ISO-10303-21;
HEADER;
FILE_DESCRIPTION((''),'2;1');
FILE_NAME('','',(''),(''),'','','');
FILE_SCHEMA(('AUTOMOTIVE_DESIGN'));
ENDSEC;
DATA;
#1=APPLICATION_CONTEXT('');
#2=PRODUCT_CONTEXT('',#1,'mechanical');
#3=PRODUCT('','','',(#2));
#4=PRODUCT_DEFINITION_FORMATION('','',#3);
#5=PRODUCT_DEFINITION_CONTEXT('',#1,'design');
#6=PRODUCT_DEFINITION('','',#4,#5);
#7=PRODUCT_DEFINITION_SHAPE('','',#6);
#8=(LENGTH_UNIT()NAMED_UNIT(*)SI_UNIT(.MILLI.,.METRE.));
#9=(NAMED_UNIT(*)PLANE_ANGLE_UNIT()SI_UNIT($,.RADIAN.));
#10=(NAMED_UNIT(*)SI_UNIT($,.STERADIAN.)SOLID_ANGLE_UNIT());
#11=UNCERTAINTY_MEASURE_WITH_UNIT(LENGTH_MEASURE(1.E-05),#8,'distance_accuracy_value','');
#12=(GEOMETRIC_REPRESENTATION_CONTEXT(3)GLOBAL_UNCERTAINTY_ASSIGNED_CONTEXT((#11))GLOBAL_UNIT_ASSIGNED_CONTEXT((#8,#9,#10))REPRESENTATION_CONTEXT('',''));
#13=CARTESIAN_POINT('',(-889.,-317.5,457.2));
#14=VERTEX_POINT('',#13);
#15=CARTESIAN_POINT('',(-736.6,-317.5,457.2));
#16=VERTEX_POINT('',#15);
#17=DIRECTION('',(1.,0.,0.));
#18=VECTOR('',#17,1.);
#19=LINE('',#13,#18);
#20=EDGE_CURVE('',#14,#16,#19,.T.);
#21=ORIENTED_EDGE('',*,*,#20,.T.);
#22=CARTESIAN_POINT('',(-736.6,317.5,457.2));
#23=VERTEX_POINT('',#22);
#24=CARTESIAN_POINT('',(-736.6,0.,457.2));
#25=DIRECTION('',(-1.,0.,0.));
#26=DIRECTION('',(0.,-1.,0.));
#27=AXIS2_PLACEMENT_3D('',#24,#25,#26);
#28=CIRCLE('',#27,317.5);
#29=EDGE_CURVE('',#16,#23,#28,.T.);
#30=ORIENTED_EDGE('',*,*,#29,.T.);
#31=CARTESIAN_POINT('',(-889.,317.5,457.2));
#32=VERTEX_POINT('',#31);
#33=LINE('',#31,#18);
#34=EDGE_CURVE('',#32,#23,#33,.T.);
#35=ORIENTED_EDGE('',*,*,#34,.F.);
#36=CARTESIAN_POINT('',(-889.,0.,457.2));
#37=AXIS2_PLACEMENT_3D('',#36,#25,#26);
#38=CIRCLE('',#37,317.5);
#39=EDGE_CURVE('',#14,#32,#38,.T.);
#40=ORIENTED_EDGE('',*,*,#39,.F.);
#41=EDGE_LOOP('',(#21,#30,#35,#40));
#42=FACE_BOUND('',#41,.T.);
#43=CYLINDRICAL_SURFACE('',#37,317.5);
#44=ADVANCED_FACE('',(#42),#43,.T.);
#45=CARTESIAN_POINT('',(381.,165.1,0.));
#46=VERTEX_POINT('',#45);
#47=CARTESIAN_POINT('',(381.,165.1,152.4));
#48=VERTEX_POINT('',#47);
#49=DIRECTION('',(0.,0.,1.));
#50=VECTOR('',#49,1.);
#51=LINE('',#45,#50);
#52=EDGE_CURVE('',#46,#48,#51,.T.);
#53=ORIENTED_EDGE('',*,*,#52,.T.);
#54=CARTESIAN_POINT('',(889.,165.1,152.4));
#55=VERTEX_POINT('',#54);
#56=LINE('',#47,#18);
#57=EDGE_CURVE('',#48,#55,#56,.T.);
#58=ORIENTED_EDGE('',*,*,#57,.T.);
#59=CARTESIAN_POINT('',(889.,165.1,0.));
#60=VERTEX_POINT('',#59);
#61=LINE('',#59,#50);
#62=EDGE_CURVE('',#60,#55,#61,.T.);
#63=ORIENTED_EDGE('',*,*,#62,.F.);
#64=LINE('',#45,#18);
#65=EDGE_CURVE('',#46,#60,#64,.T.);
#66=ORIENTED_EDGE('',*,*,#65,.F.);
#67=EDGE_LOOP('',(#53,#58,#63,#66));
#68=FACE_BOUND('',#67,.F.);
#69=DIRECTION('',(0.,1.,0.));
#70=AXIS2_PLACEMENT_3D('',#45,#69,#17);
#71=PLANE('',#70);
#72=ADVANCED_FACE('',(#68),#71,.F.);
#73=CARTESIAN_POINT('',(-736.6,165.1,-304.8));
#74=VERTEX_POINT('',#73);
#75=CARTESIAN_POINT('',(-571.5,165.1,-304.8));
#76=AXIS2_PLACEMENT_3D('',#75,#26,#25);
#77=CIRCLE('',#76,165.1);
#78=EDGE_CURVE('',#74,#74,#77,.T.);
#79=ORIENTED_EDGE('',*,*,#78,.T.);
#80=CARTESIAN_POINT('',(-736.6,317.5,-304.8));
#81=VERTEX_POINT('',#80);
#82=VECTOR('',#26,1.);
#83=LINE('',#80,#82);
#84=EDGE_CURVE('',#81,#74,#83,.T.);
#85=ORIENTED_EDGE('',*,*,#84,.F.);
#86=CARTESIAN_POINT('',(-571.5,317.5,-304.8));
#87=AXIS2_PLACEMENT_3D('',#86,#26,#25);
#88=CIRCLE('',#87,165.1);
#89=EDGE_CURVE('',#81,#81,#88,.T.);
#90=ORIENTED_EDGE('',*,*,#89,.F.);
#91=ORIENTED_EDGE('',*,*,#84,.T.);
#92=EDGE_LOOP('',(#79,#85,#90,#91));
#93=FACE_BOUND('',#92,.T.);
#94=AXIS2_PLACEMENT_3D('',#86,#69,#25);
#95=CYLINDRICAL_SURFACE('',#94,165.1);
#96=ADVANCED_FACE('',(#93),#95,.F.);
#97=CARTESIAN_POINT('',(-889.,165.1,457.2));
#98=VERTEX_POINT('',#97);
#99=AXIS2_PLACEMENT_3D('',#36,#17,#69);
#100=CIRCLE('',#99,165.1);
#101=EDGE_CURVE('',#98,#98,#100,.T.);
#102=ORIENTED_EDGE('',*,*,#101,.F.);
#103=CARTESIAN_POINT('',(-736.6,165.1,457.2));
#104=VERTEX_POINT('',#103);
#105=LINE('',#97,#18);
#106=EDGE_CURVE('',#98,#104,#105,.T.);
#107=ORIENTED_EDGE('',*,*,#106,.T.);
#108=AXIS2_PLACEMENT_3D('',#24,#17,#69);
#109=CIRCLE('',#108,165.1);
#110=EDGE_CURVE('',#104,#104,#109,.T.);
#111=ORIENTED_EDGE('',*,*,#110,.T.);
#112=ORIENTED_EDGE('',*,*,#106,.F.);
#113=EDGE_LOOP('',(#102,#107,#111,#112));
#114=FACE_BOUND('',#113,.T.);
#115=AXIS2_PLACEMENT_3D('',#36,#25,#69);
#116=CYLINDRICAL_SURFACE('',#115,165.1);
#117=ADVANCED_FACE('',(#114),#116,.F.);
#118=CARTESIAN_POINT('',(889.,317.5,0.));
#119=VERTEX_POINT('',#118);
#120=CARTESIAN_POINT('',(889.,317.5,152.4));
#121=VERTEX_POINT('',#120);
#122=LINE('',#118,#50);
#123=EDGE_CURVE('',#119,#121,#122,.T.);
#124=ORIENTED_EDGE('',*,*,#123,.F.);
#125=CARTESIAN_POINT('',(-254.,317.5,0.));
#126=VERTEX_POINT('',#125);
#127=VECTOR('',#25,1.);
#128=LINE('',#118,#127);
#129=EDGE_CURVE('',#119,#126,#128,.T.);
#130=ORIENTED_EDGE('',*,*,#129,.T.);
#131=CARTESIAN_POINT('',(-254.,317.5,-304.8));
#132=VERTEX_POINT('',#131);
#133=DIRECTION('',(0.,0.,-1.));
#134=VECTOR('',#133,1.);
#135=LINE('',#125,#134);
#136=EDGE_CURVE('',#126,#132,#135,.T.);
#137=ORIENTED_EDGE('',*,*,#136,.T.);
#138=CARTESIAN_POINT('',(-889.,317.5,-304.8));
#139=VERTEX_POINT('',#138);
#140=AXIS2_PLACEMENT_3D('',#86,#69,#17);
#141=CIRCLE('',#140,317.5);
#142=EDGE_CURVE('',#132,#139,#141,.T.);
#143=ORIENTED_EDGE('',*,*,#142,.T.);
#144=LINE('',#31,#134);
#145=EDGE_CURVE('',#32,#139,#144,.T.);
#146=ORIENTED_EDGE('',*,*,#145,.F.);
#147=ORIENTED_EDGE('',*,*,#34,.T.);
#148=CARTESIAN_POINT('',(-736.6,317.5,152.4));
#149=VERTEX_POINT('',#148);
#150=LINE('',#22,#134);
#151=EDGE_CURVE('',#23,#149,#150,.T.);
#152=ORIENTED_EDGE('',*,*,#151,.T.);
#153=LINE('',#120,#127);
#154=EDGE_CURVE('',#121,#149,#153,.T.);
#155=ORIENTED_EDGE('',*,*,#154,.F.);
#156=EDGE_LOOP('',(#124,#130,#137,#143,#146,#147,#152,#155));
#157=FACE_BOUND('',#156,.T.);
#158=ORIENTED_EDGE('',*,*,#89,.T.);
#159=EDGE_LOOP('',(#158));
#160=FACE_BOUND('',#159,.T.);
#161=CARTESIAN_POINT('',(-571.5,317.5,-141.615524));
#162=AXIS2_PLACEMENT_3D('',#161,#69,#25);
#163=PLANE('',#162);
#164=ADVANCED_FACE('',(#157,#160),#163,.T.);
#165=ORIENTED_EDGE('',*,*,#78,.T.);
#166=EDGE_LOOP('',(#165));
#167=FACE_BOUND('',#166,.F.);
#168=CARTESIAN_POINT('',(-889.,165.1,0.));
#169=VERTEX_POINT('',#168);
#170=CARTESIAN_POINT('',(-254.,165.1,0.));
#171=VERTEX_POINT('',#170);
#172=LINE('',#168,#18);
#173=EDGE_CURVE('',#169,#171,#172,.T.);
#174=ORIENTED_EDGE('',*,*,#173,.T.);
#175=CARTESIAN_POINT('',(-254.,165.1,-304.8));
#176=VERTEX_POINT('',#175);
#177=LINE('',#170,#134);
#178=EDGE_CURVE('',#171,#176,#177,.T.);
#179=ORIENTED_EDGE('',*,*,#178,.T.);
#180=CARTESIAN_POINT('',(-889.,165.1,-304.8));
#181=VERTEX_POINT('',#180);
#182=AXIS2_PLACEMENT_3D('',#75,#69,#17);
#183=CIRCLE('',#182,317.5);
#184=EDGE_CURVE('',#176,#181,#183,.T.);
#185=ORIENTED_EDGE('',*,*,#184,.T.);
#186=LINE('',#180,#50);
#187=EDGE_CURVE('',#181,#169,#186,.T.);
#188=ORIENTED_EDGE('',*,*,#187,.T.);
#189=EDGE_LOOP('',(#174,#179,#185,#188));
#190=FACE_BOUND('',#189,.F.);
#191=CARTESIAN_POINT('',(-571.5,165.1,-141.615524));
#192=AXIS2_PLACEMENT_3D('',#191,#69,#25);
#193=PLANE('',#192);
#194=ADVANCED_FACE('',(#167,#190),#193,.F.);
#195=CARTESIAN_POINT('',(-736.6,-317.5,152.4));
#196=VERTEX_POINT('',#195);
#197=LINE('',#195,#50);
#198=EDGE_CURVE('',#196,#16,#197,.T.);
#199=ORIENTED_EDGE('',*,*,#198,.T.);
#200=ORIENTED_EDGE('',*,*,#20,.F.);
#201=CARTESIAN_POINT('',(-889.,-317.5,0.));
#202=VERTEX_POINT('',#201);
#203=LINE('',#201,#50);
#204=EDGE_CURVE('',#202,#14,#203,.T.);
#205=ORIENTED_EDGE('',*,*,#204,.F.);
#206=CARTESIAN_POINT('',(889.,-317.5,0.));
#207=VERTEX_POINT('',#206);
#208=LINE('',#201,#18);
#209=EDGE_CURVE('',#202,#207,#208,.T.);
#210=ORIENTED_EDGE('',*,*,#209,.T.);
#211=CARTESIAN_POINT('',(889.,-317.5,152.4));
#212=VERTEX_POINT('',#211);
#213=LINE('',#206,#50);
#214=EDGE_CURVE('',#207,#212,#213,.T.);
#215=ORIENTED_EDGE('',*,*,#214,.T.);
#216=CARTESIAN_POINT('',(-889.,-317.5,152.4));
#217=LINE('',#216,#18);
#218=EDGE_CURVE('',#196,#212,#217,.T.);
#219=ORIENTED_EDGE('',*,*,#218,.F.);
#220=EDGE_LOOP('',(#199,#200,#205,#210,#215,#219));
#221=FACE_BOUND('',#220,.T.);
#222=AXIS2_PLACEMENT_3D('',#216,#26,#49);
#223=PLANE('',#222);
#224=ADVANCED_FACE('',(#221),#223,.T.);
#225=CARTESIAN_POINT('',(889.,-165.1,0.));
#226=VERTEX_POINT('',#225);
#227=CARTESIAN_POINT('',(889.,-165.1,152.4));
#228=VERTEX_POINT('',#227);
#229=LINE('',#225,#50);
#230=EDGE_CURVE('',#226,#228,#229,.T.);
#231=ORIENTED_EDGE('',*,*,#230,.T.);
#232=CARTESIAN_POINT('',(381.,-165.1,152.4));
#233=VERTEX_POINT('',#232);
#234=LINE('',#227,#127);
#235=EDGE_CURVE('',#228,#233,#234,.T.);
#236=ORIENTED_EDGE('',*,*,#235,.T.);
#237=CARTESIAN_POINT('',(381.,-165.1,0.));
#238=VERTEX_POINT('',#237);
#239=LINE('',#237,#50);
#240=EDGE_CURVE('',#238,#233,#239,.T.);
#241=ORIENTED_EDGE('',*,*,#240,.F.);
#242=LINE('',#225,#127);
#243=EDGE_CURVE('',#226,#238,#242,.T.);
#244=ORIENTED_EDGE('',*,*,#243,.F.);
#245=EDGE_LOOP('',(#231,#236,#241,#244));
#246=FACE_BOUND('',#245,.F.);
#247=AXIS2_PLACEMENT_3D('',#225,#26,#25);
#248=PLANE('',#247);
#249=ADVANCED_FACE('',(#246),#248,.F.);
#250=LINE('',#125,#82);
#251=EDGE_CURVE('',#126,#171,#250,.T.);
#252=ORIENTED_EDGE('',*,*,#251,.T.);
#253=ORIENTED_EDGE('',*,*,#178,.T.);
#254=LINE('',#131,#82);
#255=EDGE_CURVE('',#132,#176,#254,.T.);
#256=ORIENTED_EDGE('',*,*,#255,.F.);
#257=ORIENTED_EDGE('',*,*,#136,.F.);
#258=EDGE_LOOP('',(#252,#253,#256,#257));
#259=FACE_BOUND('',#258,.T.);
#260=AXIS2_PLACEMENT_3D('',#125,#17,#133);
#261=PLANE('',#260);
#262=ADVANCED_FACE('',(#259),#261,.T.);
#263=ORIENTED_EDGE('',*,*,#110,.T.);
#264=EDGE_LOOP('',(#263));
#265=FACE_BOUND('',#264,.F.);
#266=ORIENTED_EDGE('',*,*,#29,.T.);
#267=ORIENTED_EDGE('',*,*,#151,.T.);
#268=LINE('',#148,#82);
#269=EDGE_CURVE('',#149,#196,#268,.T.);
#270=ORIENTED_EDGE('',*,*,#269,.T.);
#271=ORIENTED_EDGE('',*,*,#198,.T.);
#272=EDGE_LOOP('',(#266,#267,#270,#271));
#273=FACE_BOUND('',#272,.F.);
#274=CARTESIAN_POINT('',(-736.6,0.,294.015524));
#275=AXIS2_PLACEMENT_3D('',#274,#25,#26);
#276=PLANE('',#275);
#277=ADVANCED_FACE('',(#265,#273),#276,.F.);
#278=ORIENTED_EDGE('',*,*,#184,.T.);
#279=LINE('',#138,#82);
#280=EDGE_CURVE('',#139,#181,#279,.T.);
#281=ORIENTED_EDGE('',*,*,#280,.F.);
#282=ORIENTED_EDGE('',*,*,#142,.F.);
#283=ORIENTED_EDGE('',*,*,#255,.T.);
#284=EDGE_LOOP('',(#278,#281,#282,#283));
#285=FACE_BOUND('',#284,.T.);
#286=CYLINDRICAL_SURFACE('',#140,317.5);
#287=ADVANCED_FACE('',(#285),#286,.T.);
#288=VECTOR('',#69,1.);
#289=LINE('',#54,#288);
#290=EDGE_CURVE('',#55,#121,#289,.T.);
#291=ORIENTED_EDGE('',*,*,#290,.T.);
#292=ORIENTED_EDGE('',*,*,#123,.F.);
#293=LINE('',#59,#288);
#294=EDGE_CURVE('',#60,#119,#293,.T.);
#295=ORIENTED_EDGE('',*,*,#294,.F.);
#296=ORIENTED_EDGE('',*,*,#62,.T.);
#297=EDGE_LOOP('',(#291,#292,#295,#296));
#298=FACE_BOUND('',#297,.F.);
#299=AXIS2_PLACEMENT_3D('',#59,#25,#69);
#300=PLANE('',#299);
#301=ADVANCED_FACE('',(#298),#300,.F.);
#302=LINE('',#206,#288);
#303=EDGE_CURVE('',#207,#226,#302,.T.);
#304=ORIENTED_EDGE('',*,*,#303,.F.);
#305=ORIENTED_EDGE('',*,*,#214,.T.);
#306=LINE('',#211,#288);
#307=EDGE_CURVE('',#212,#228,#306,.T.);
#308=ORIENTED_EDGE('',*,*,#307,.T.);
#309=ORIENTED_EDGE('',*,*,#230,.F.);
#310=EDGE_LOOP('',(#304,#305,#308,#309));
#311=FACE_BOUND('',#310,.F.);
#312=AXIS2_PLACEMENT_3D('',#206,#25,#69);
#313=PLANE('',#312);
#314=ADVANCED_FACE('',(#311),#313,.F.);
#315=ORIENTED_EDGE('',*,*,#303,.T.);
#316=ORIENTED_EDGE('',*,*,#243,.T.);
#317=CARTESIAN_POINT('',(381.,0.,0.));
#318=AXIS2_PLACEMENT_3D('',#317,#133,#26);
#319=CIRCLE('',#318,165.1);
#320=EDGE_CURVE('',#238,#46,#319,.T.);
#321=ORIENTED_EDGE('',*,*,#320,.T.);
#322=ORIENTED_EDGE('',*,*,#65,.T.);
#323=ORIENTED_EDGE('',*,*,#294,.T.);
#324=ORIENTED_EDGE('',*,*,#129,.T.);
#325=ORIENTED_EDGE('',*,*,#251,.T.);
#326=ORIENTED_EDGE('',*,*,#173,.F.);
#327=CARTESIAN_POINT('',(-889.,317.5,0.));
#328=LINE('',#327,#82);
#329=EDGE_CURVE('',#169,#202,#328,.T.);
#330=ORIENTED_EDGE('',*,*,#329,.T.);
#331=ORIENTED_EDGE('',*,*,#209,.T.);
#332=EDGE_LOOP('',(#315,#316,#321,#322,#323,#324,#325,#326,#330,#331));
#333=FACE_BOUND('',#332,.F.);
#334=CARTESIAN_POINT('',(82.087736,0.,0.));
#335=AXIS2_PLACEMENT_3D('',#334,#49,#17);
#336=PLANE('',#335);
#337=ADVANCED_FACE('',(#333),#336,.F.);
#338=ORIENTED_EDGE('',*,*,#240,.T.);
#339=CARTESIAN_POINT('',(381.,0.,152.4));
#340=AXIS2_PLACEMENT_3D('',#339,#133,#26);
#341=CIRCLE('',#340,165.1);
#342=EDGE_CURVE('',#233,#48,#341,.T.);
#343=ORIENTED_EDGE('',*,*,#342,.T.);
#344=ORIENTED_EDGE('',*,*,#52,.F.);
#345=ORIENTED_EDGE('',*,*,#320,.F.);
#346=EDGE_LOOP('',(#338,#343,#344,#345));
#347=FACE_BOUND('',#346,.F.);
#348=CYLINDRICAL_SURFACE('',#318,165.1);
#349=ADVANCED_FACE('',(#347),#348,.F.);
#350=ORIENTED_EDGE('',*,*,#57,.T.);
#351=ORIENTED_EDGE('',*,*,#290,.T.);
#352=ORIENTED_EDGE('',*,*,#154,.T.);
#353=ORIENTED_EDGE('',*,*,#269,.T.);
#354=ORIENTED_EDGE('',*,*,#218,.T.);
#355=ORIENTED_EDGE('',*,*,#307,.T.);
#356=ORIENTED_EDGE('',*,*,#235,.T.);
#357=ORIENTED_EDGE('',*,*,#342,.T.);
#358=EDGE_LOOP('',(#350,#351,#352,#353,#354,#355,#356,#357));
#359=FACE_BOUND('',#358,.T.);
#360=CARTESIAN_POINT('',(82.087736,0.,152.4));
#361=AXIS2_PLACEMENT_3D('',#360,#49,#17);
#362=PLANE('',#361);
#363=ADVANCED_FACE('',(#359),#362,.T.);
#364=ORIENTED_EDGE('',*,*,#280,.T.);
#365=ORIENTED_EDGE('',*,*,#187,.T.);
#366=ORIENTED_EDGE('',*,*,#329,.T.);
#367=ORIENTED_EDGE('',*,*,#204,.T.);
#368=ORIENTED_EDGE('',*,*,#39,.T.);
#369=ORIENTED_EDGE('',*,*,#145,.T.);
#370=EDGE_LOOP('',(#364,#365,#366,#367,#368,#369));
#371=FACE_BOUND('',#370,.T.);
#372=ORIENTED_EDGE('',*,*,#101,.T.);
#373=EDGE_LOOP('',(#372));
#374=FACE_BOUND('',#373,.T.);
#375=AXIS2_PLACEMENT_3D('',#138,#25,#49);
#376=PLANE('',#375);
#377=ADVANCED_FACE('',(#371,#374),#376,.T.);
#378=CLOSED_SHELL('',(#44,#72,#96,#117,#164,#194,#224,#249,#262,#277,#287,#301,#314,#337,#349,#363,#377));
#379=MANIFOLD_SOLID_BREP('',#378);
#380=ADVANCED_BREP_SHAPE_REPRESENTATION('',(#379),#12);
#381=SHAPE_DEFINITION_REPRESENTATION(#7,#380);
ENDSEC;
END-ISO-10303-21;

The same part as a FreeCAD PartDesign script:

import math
import FreeCAD as App
import Part
import Sketcher
Q = App.Units.Quantity

doc = App.newDocument("Part")
body = doc.addObject("PartDesign::Body", "Body")

sketch1 = body.newObject("Sketcher::SketchObject", "Sketch")
sketch1.AttachmentSupport = (doc.getObject("XY_Plane"), [""])
sketch1.MapMode = "FlatFace"
sketch1.addGeometry(Part.LineSegment(App.Vector(889, 165, 0), App.Vector(889, 318, 0)), False)
sketch1.addGeometry(Part.LineSegment(App.Vector(889, 318, 0), App.Vector(-889, 318, 0)), False)
sketch1.addGeometry(Part.LineSegment(App.Vector(-889, 318, 0), App.Vector(-889, -318, 0)), False)
sketch1.addGeometry(Part.LineSegment(App.Vector(-889, -318, 0), App.Vector(889, -318, 0)), False)
sketch1.addGeometry(Part.LineSegment(App.Vector(889, -318, 0), App.Vector(889, -165, 0)), False)
sketch1.addGeometry(Part.LineSegment(App.Vector(889, -165, 0), App.Vector(381, -165, 0)), False)
sketch1.addGeometry(Part.ArcOfCircle(Part.Circle(App.Vector(381, 0, 0), App.Vector(0, 0, 1), 165), math.radians(90), math.radians(270)), False)
sketch1.addGeometry(Part.LineSegment(App.Vector(381, 165, 0), App.Vector(889, 165, 0)), False)
sketch1.addConstraint(Sketcher.Constraint("Coincident", 0, 2, 1, 1))
sketch1.addConstraint(Sketcher.Constraint("Coincident", 1, 2, 2, 1))
sketch1.addConstraint(Sketcher.Constraint("Coincident", 2, 2, 3, 1))
sketch1.addConstraint(Sketcher.Constraint("Coincident", 3, 2, 4, 1))
sketch1.addConstraint(Sketcher.Constraint("Coincident", 4, 2, 5, 1))
sketch1.addConstraint(Sketcher.Constraint("Tangent", 5, 2, 6, 2))
sketch1.addConstraint(Sketcher.Constraint("Tangent", 6, 1, 7, 1))
sketch1.addConstraint(Sketcher.Constraint("Coincident", 7, 2, 0, 1))
sketch1.addConstraint(Sketcher.Constraint("Vertical", 0))
sketch1.addConstraint(Sketcher.Constraint("Horizontal", 1))
sketch1.addConstraint(Sketcher.Constraint("Vertical", 2))
sketch1.addConstraint(Sketcher.Constraint("Horizontal", 3))
sketch1.addConstraint(Sketcher.Constraint("Vertical", 4))
sketch1.addConstraint(Sketcher.Constraint("Horizontal", 5))
sketch1.addConstraint(Sketcher.Constraint("Horizontal", 7))
sketch1.addConstraint(Sketcher.Constraint("Symmetric", 0, 2, 2, 2, -1, 1))
sketch1.addConstraint(Sketcher.Constraint("Symmetric", 4, 2, 7, 2, -1))
sketch1.addConstraint(Sketcher.Constraint("Radius", 6, Q("6.5 in")))
sketch1.addConstraint(Sketcher.Constraint("DistanceX", 1, 2, 1, 1, Q("70 in")))
sketch1.addConstraint(Sketcher.Constraint("DistanceX", 5, 2, 5, 1, Q("20 in")))
sketch1.addConstraint(Sketcher.Constraint("DistanceY", 0, 1, 0, 2, Q("6 in")))
pad1 = body.newObject("PartDesign::Pad", "Pad")
pad1.Profile = sketch1
pad1.Length = Q("6 in")

sketch2 = body.newObject("Sketcher::SketchObject", "Sketch001")
sketch2.AttachmentSupport = (doc.getObject("YZ_Plane"), [""])
sketch2.MapMode = "FlatFace"
sketch2.AttachmentOffset = App.Placement(App.Vector(0, 0, -35 * 25.4), App.Rotation())
sketch2.addGeometry(Part.LineSegment(App.Vector(318, 457, 0), App.Vector(318, 152, 0)), False)
sketch2.addGeometry(Part.LineSegment(App.Vector(318, 152, 0), App.Vector(-318, 152, 0)), False)
sketch2.addGeometry(Part.LineSegment(App.Vector(-318, 152, 0), App.Vector(-318, 457, 0)), False)
sketch2.addGeometry(Part.ArcOfCircle(Part.Circle(App.Vector(0, 457, 0), App.Vector(0, 0, 1), 318), math.radians(0), math.radians(180)), False)
sketch2.addGeometry(Part.Circle(App.Vector(0, 457, 0), App.Vector(0, 0, 1), 165), False)
sketch2.addConstraint(Sketcher.Constraint("Coincident", 0, 2, 1, 1))
sketch2.addConstraint(Sketcher.Constraint("Coincident", 1, 2, 2, 1))
sketch2.addConstraint(Sketcher.Constraint("Tangent", 2, 2, 3, 2))
sketch2.addConstraint(Sketcher.Constraint("Tangent", 3, 1, 0, 1))
sketch2.addConstraint(Sketcher.Constraint("Vertical", 0))
sketch2.addConstraint(Sketcher.Constraint("Horizontal", 1))
sketch2.addConstraint(Sketcher.Constraint("Vertical", 2))
sketch2.addConstraint(Sketcher.Constraint("Coincident", 4, 3, 3, 3))
sketch2.addConstraint(Sketcher.Constraint("PointOnObject", 3, 3, -2))
sketch2.addConstraint(Sketcher.Constraint("Diameter", 4, Q("13 in")))
sketch2.addConstraint(Sketcher.Constraint("Radius", 3, Q("12.5 in")))
sketch2.addConstraint(Sketcher.Constraint("DistanceY", 0, 2, 0, 1, Q("12 in")))
sketch2.addConstraint(Sketcher.Constraint("DistanceY", -1, 1, 3, 3, Q("18 in")))
pad2 = body.newObject("PartDesign::Pad", "Pad001")
pad2.Profile = sketch2
pad2.Length = Q("6 in")

sketch3 = body.newObject("Sketcher::SketchObject", "Sketch002")
sketch3.AttachmentSupport = (doc.getObject("XZ_Plane"), [""])
sketch3.MapMode = "FlatFace"
sketch3.AttachmentOffset = App.Placement(App.Vector(0, 0, -12.5 * 25.4), App.Rotation())
sketch3.addGeometry(Part.LineSegment(App.Vector(-889, -305, 0), App.Vector(-889, 0, 0)), False)
sketch3.addGeometry(Part.LineSegment(App.Vector(-889, 0, 0), App.Vector(-254, 0, 0)), False)
sketch3.addGeometry(Part.LineSegment(App.Vector(-254, 0, 0), App.Vector(-254, -305, 0)), False)
sketch3.addGeometry(Part.ArcOfCircle(Part.Circle(App.Vector(-572, -305, 0), App.Vector(0, 0, 1), 318), math.radians(180), math.radians(360)), False)
sketch3.addGeometry(Part.Circle(App.Vector(-572, -305, 0), App.Vector(0, 0, 1), 165), False)
sketch3.addConstraint(Sketcher.Constraint("Coincident", 0, 2, 1, 1))
sketch3.addConstraint(Sketcher.Constraint("Coincident", 1, 2, 2, 1))
sketch3.addConstraint(Sketcher.Constraint("Tangent", 2, 2, 3, 2))
sketch3.addConstraint(Sketcher.Constraint("Tangent", 3, 1, 0, 1))
sketch3.addConstraint(Sketcher.Constraint("Vertical", 0))
sketch3.addConstraint(Sketcher.Constraint("Horizontal", 1))
sketch3.addConstraint(Sketcher.Constraint("Vertical", 2))
sketch3.addConstraint(Sketcher.Constraint("Coincident", 4, 3, 3, 3))
sketch3.addConstraint(Sketcher.Constraint("PointOnObject", 0, 2, -1))
sketch3.addConstraint(Sketcher.Constraint("Diameter", 4, Q("13 in")))
sketch3.addConstraint(Sketcher.Constraint("Radius", 3, Q("12.5 in")))
sketch3.addConstraint(Sketcher.Constraint("DistanceY", 0, 1, 0, 2, Q("12 in")))
sketch3.addConstraint(Sketcher.Constraint("DistanceX", 0, 2, -1, 1, Q("35 in")))
pad3 = body.newObject("PartDesign::Pad", "Pad002")
pad3.Profile = sketch3
pad3.Length = Q("6 in")

doc.recompute()
